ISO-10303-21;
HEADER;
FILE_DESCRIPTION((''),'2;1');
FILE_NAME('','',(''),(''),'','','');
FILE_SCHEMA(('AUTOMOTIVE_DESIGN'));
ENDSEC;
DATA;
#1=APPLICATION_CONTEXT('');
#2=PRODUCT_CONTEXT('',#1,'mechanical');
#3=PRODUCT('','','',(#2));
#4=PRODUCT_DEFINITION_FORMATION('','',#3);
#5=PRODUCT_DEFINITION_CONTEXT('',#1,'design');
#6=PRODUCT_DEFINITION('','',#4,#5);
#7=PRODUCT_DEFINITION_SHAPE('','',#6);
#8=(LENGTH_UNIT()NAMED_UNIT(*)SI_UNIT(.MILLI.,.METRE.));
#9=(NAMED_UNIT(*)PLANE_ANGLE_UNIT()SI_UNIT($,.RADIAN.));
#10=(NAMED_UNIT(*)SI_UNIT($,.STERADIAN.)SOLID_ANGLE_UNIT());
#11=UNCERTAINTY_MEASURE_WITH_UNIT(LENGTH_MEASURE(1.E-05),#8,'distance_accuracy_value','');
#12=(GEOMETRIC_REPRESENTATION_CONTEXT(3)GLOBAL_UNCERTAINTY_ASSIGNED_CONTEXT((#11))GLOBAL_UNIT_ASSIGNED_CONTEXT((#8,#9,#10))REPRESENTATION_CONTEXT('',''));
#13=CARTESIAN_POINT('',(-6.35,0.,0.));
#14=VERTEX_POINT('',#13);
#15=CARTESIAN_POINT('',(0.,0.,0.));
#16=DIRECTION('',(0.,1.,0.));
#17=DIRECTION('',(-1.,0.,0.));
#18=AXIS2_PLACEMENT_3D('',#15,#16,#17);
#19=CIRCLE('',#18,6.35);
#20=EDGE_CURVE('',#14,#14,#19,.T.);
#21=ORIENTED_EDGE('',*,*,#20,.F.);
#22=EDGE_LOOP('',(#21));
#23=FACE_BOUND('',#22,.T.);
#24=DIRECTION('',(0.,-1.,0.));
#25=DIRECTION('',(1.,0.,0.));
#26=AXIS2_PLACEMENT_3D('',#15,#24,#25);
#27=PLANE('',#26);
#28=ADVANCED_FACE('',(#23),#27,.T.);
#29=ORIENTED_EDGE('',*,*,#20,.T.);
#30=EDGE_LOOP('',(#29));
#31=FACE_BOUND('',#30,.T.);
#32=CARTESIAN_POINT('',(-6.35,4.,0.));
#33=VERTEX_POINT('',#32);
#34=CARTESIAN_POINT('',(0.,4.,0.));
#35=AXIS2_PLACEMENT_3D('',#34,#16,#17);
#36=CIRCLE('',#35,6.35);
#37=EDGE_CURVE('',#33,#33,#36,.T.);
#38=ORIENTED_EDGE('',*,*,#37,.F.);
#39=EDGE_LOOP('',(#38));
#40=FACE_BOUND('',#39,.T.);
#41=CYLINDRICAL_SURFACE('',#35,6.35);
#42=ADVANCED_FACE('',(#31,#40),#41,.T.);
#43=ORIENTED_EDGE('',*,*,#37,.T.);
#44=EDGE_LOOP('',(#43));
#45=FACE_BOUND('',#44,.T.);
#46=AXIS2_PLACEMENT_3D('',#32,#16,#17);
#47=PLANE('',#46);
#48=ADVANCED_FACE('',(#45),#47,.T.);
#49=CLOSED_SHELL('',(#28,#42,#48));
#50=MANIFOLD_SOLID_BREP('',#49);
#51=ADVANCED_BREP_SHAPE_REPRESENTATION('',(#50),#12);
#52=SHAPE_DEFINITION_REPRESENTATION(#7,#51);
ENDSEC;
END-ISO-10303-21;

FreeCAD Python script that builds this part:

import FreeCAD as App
import Part
import Sketcher

V = App.Vector

doc = App.newDocument("Part")
body = doc.addObject("PartDesign::Body", "Body")

sketch1 = doc.addObject("Sketcher::SketchObject", "Sketch")
body.addObject(sketch1)
sketch1.AttachmentSupport = (doc.XY_Plane, [""])
sketch1.MapMode = "FlatFace"
sketch1.addGeometry(Part.LineSegment(V(-6.3, 4, 0), V(-6.3, 0, 0)), False)
sketch1.addGeometry(Part.LineSegment(V(-6.3, 0, 0), V(0, 0, 0)), False)
sketch1.addGeometry(Part.LineSegment(V(0, 0, 0), V(0, 4, 0)), False)
sketch1.addGeometry(Part.LineSegment(V(0, 4, 0), V(-6.3, 4, 0)), False)
sketch1.addConstraint(Sketcher.Constraint("Coincident", 0, 2, 1, 1))
sketch1.addConstraint(Sketcher.Constraint("Coincident", 1, 2, 2, 1))
sketch1.addConstraint(Sketcher.Constraint("Coincident", 2, 2, 3, 1))
sketch1.addConstraint(Sketcher.Constraint("Coincident", 3, 2, 0, 1))
sketch1.addConstraint(Sketcher.Constraint("Vertical", 0))
sketch1.addConstraint(Sketcher.Constraint("Horizontal", 1))
sketch1.addConstraint(Sketcher.Constraint("Vertical", 2))
sketch1.addConstraint(Sketcher.Constraint("Horizontal", 3))
sketch1.addConstraint(Sketcher.Constraint("Coincident", 1, 2, -1, 1))
sketch1.addConstraint(Sketcher.Constraint("DistanceY", 0, 2, 0, 1, 4.0))
sketch1.addConstraint(Sketcher.Constraint("DistanceX", 1, 1, 1, 2, 6.35))
revolution = doc.addObject("PartDesign::Revolution", "Revolution")
body.addObject(revolution)
revolution.Profile = sketch1
revolution.ReferenceAxis = (sketch1, ["V_Axis"])
revolution.Angle = 360

doc.recompute()
